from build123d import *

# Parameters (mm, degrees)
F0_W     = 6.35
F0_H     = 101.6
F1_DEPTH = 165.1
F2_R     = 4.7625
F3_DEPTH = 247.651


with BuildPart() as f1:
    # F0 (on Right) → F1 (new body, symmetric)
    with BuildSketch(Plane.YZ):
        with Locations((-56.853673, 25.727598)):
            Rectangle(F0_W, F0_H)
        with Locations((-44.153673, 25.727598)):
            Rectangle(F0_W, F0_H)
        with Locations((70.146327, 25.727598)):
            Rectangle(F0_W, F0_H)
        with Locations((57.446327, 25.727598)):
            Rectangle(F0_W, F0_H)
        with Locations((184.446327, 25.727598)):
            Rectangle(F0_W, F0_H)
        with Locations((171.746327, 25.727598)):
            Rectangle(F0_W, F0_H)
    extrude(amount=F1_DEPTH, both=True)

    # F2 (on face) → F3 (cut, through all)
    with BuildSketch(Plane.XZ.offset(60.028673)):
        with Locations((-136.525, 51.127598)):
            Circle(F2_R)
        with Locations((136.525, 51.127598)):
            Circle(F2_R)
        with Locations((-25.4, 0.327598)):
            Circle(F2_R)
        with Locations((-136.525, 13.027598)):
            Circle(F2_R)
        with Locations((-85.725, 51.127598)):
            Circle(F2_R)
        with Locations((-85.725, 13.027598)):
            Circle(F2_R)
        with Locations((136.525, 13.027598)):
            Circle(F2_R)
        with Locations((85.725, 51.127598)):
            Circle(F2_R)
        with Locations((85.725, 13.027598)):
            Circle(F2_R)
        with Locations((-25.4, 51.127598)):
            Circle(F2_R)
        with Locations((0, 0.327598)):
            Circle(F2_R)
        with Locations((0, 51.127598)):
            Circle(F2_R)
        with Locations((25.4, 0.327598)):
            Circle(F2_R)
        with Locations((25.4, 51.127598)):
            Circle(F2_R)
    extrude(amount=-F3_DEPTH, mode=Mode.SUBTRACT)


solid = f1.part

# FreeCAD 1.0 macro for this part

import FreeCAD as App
import Part
import Sketcher
Q = App.Units.Quantity


def add_polygon(sketch, points):
    """Adds a closed chain of lines whose ends are joined by coincident constraints."""
    first, n = sketch.GeometryCount, len(points)
    for a, b in zip(points, points[1:] + points[:1]):
        sketch.addGeometry(Part.LineSegment(App.Vector(*a, 0), App.Vector(*b, 0)), False)
    for i in range(n):
        sketch.addConstraint(Sketcher.Constraint("Coincident", first + i, 2, first + (i + 1) % n, 1))

doc = App.newDocument("Part")
body = doc.addObject("PartDesign::Body", "Body")
body.AllowCompound = True

sketch1 = body.newObject("Sketcher::SketchObject", "Sketch")
sketch1.AttachmentSupport = (doc.getObject("YZ_Plane"), [""])
sketch1.MapMode = "FlatFace"
add_polygon(sketch1, [(-60, 77), (-60, -25), (-54, -25), (-54, 77)])
add_polygon(sketch1, [(-47, 77), (-47, -25), (-41, -25), (-41, 77)])
add_polygon(sketch1, [(67, 77), (67, -25), (73, -25), (73, 77)])
add_polygon(sketch1, [(54, 77), (54, -25), (61, -25), (61, 77)])
add_polygon(sketch1, [(181, 77), (181, -25), (188, -25), (188, 77)])
add_polygon(sketch1, [(169, 77), (169, -25), (175, -25), (175, 77)])
sketch1.addConstraint(Sketcher.Constraint("Vertical", 0))
sketch1.addConstraint(Sketcher.Constraint("Horizontal", 1))
sketch1.addConstraint(Sketcher.Constraint("Vertical", 2))
sketch1.addConstraint(Sketcher.Constraint("Horizontal", 3))
sketch1.addConstraint(Sketcher.Constraint("Vertical", 4))
sketch1.addConstraint(Sketcher.Constraint("Horizontal", 5))
sketch1.addConstraint(Sketcher.Constraint("Vertical", 6))
sketch1.addConstraint(Sketcher.Constraint("Horizontal", 7))
sketch1.addConstraint(Sketcher.Constraint("Vertical", 8))
sketch1.addConstraint(Sketcher.Constraint("Horizontal", 9))
sketch1.addConstraint(Sketcher.Constraint("Vertical", 10))
sketch1.addConstraint(Sketcher.Constraint("Horizontal", 11))
sketch1.addConstraint(Sketcher.Constraint("Vertical", 12))
sketch1.addConstraint(Sketcher.Constraint("Horizontal", 13))
sketch1.addConstraint(Sketcher.Constraint("Vertical", 14))
sketch1.addConstraint(Sketcher.Constraint("Horizontal", 15))
sketch1.addConstraint(Sketcher.Constraint("Vertical", 16))
sketch1.addConstraint(Sketcher.Constraint("Horizontal", 17))
sketch1.addConstraint(Sketcher.Constraint("Vertical", 18))
sketch1.addConstraint(Sketcher.Constraint("Horizontal", 19))
sketch1.addConstraint(Sketcher.Constraint("Vertical", 20))
sketch1.addConstraint(Sketcher.Constraint("Horizontal", 21))
sketch1.addConstraint(Sketcher.Constraint("Vertical", 22))
sketch1.addConstraint(Sketcher.Constraint("Horizontal", 23))
sketch1.addConstraint(Sketcher.Constraint("Horizontal", 1, 2, 4, 2))
sketch1.addConstraint(Sketcher.Constraint("Horizontal", 3, 2, 6, 2))
sketch1.addConstraint(Sketcher.Constraint("Horizontal", 5, 2, 8, 2))
sketch1.addConstraint(Sketcher.Constraint("Horizontal", 7, 2, 10, 2))
sketch1.addConstraint(Sketcher.Constraint("Horizontal", 9, 2, 12, 2))
sketch1.addConstraint(Sketcher.Constraint("Horizontal", 11, 2, 14, 2))
sketch1.addConstraint(Sketcher.Constraint("Horizontal", 13, 2, 16, 2))
sketch1.addConstraint(Sketcher.Constraint("Horizontal", 15, 2, 18, 2))
sketch1.addConstraint(Sketcher.Constraint("Horizontal", 17, 2, 20, 2))
sketch1.addConstraint(Sketcher.Constraint("Horizontal", 19, 2, 22, 2))
sketch1.addConstraint(Sketcher.Constraint("Equal", 3, 5))
sketch1.addConstraint(Sketcher.Constraint("Equal", 7, 9))
sketch1.addConstraint(Sketcher.Constraint("Equal", 11, 13))
sketch1.addConstraint(Sketcher.Constraint("Equal", 15, 17))
sketch1.addConstraint(Sketcher.Constraint("Equal", 19, 21))
sketch1.addConstraint(Sketcher.Constraint("DistanceY", 0, 2, 0, 1, Q("4 in")))
sketch1.addConstraint(Sketcher.Constraint("DistanceX", 0, 2, 8, 2, Q("5 in")))
sketch1.addConstraint(Sketcher.Constraint("DistanceX", 4, 2, 12, 2, Q("4 in")))
sketch1.addConstraint(Sketcher.Constraint("DistanceX", 12, 2, 16, 2, Q("5 in")))
sketch1.addConstraint(Sketcher.Constraint("DistanceX", 8, 2, 20, 2, Q("4 in")))
sketch1.addConstraint(Sketcher.Constraint("DistanceX", 1, 1, 1, 2, Q("0.25 in")))
sketch1.addConstraint(Sketcher.Constraint("DistanceX", 0, 2, 4, 2, Q("0.5 in")))
sketch1.addConstraint(Sketcher.Constraint("DistanceX", 0, 2, -1, 1, Q("60.028673 mm")))
sketch1.addConstraint(Sketcher.Constraint("DistanceY", 0, 2, -1, 1, Q("25.072402 mm")))
pad1 = body.newObject("PartDesign::Pad", "Pad")
pad1.Profile = sketch1
pad1.Length = Q("13 in")
pad1.Midplane = True

sketch2 = body.newObject("Sketcher::SketchObject", "Sketch001")
sketch2.AttachmentSupport = (doc.getObject("XZ_Plane"), [""])
sketch2.MapMode = "FlatFace"
sketch2.AttachmentOffset = App.Placement(App.Vector(0, 0, 60.028673), App.Rotation())
sketch2.addGeometry(Part.Circle(App.Vector(-136.5, 51.1, 0), App.Vector(0, 0, 1), 4.8), False)
sketch2.addGeometry(Part.Circle(App.Vector(136.5, 51.1, 0), App.Vector(0, 0, 1), 4.8), False)
sketch2.addGeometry(Part.Circle(App.Vector(-25.4, 0.3, 0), App.Vector(0, 0, 1), 4.8), False)
sketch2.addGeometry(Part.Circle(App.Vector(-136.5, 13, 0), App.Vector(0, 0, 1), 4.8), False)
sketch2.addGeometry(Part.Circle(App.Vector(-85.7, 51.1, 0), App.Vector(0, 0, 1), 4.8), False)
sketch2.addGeometry(Part.Circle(App.Vector(-85.7, 13, 0), App.Vector(0, 0, 1), 4.8), False)
sketch2.addGeometry(Part.Circle(App.Vector(136.5, 13, 0), App.Vector(0, 0, 1), 4.8), False)
sketch2.addGeometry(Part.Circle(App.Vector(85.7, 51.1, 0), App.Vector(0, 0, 1), 4.8), False)
sketch2.addGeometry(Part.Circle(App.Vector(85.7, 13, 0), App.Vector(0, 0, 1), 4.8), False)
sketch2.addGeometry(Part.Circle(App.Vector(-25.4, 51.1, 0), App.Vector(0, 0, 1), 4.8), False)
sketch2.addGeometry(Part.Circle(App.Vector(0, 0.3, 0), App.Vector(0, 0, 1), 4.8), False)
sketch2.addGeometry(Part.Circle(App.Vector(0, 51.1, 0), App.Vector(0, 0, 1), 4.8), False)
sketch2.addGeometry(Part.Circle(App.Vector(25.4, 0.3, 0), App.Vector(0, 0, 1), 4.8), False)
sketch2.addGeometry(Part.Circle(App.Vector(25.4, 51.1, 0), App.Vector(0, 0, 1), 4.8), False)
sketch2.addConstraint(Sketcher.Constraint("Equal", 0, 1))
sketch2.addConstraint(Sketcher.Constraint("Equal", 1, 2))
sketch2.addConstraint(Sketcher.Constraint("Equal", 2, 3))
sketch2.addConstraint(Sketcher.Constraint("Equal", 3, 4))
sketch2.addConstraint(Sketcher.Constraint("Equal", 4, 5))
sketch2.addConstraint(Sketcher.Constraint("Equal", 5, 6))
sketch2.addConstraint(Sketcher.Constraint("Equal", 6, 7))
sketch2.addConstraint(Sketcher.Constraint("Equal", 7, 8))
sketch2.addConstraint(Sketcher.Constraint("Equal", 8, 9))
sketch2.addConstraint(Sketcher.Constraint("Equal", 9, 10))
sketch2.addConstraint(Sketcher.Constraint("Equal", 10, 11))
sketch2.addConstraint(Sketcher.Constraint("Equal", 11, 12))
sketch2.addConstraint(Sketcher.Constraint("Equal", 12, 13))
sketch2.addConstraint(Sketcher.Constraint("Symmetric", 0, 3, 1, 3, -2))
sketch2.addConstraint(Sketcher.Constraint("Symmetric", 3, 3, 6, 3, -2))
sketch2.addConstraint(Sketcher.Constraint("Symmetric", 4, 3, 7, 3, -2))
sketch2.addConstraint(Sketcher.Constraint("Symmetric", 5, 3, 8, 3, -2))
sketch2.addConstraint(Sketcher.Constraint("Symmetric", 2, 3, 12, 3, -2))
sketch2.addConstraint(Sketcher.Constraint("Symmetric", 9, 3, 13, 3, -2))
sketch2.addConstraint(Sketcher.Constraint("PointOnObject", 10, 3, -2))
sketch2.addConstraint(Sketcher.Constraint("PointOnObject", 11, 3, -2))
sketch2.addConstraint(Sketcher.Constraint("Horizontal", 1, 3, 4, 3))
sketch2.addConstraint(Sketcher.Constraint("Horizontal", 3, 3, 5, 3))
sketch2.addConstraint(Sketcher.Constraint("Horizontal", 7, 3, 9, 3))
sketch2.addConstraint(Sketcher.Constraint("Horizontal", 2, 3, 10, 3))
sketch2.addConstraint(Sketcher.Constraint("Horizontal", 9, 3, 11, 3))
sketch2.addConstraint(Sketcher.Constraint("Vertical", 0, 3, 3, 3))
sketch2.addConstraint(Sketcher.Constraint("Vertical", 4, 3, 5, 3))
sketch2.addConstraint(Sketcher.Constraint("Vertical", 2, 3, 9, 3))
sketch2.addConstraint(Sketcher.Constraint("Diameter", 0, Q("0.375 in")))
sketch2.addConstraint(Sketcher.Constraint("DistanceX", 2, 3, -1, 1, Q("1 in")))
sketch2.addConstraint(Sketcher.Constraint("DistanceY", 2, 3, 0, 3, Q("2 in")))
sketch2.addConstraint(Sketcher.Constraint("DistanceX", 0, 3, 4, 3, Q("2 in")))
sketch2.addConstraint(Sketcher.Constraint("DistanceY", 3, 3, 0, 3, Q("1.5 in")))
sketch2.addConstraint(Sketcher.Constraint("DistanceX", 0, 3, 1, 3, Q("10.75 in")))
sketch2.addConstraint(Sketcher.Constraint("DistanceY", -1, 1, 0, 3, Q("51.127598 mm")))
pocket1 = body.newObject("PartDesign::Pocket", "Pocket")
pocket1.Profile = sketch2
pocket1.Type = "ThroughAll"

doc.recompute()
